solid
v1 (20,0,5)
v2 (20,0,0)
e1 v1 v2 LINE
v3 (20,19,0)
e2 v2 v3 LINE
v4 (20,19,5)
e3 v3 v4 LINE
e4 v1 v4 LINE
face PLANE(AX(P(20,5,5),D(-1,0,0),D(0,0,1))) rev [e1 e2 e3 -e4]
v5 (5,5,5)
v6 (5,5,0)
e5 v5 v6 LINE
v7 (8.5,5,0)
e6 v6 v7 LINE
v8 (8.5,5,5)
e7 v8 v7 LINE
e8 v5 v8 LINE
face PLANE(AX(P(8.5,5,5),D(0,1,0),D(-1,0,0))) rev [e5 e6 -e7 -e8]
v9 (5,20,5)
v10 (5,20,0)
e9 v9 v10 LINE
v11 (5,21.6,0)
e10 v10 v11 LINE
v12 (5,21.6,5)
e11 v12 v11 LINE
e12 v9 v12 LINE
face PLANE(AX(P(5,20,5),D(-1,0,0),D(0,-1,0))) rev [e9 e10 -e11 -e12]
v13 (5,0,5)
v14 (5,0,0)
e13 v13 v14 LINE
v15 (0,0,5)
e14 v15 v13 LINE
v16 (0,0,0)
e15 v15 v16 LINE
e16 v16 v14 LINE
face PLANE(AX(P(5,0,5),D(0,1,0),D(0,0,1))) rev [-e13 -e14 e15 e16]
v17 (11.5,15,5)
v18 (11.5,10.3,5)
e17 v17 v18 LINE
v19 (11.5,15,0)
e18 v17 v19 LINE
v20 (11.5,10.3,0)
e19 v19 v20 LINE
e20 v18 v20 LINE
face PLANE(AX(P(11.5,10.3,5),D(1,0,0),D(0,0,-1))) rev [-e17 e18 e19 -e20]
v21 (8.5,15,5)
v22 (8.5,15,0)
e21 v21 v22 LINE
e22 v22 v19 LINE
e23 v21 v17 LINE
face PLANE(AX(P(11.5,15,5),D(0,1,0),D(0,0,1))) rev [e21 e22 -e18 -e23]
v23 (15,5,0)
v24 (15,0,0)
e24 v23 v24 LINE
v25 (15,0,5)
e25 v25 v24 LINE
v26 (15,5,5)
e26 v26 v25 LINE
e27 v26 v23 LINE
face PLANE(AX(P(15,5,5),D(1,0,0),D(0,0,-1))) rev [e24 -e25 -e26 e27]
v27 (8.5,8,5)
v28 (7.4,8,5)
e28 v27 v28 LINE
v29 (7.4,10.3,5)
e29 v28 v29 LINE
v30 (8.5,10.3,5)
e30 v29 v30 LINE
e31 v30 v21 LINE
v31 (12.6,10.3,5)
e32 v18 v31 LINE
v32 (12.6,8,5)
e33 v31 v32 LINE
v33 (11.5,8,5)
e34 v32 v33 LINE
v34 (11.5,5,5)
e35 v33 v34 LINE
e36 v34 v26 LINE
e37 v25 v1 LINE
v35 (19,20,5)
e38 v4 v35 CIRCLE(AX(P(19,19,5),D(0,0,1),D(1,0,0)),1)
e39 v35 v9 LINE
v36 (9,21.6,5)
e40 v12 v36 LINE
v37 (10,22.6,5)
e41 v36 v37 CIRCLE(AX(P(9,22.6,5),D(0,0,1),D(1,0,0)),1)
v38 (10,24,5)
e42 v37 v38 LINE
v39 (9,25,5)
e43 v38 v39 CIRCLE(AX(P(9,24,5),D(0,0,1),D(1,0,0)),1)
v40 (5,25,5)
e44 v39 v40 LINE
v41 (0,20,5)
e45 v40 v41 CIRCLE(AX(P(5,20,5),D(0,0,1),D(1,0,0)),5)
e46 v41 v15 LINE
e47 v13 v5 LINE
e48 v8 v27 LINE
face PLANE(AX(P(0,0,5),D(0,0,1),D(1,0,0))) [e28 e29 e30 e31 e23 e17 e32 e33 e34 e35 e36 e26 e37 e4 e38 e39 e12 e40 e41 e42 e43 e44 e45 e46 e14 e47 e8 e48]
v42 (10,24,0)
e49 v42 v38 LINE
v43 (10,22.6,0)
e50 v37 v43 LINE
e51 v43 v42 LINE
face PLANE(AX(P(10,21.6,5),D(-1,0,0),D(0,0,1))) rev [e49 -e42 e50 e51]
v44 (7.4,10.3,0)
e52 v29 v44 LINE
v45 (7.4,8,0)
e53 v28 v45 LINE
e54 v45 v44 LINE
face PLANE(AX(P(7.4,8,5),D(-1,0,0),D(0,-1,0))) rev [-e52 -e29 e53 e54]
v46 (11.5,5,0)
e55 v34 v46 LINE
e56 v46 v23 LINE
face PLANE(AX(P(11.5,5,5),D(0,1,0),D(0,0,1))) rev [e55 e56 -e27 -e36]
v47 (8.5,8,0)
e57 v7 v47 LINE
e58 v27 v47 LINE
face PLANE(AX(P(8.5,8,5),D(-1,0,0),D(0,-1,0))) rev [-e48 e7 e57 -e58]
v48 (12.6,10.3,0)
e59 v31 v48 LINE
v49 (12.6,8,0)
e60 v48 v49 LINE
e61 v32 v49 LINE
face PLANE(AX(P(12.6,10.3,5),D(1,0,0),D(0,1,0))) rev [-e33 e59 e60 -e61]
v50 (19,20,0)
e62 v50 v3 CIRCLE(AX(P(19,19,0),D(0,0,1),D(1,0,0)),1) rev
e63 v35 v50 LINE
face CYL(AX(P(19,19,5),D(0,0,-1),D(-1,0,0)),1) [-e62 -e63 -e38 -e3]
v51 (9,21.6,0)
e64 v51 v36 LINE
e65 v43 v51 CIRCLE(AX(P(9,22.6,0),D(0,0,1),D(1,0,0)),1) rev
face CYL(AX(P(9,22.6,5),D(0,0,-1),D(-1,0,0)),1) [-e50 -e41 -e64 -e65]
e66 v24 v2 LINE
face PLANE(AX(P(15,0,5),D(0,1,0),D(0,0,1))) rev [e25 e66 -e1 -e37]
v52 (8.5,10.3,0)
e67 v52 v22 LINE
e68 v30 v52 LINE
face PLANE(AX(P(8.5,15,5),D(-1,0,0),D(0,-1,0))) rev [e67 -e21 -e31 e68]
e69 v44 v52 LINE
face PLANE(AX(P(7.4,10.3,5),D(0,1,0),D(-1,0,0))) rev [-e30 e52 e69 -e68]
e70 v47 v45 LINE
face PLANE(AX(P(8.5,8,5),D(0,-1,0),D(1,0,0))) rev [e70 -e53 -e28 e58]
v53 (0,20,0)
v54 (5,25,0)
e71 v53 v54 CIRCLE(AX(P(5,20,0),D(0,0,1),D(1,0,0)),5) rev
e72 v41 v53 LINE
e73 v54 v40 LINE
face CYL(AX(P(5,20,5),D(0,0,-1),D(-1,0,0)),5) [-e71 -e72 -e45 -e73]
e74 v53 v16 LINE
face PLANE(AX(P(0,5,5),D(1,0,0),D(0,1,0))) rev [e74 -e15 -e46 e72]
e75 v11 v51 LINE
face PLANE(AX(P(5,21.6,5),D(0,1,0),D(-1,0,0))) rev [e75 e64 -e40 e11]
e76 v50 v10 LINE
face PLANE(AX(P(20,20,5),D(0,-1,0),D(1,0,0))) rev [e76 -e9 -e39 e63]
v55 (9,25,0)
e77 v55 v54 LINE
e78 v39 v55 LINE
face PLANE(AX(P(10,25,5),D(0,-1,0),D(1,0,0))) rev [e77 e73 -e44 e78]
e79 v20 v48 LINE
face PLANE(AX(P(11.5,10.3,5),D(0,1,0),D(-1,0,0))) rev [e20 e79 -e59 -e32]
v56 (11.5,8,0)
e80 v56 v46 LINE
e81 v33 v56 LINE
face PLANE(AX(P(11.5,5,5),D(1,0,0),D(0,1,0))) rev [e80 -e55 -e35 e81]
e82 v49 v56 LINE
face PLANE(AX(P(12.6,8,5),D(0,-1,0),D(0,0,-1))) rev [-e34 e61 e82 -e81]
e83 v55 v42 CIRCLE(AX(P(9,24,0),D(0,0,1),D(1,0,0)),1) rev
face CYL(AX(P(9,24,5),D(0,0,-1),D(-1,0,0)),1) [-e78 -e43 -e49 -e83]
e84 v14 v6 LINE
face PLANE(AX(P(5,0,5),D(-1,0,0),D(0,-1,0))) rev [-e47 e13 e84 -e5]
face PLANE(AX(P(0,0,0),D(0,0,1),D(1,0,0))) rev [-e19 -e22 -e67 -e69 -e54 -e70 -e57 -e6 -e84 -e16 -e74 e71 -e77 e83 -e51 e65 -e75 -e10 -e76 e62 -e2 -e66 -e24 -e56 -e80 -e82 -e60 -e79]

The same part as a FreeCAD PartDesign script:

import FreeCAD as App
import Part
import Sketcher

V = App.Vector


def edges_at(feature, points):
    """Names of the edges that pass closest to the given points."""
    edges = feature.Shape.Edges
    near = lambda p: min(range(len(edges)), key=lambda i: edges[i].distToShape(Part.Vertex(*p))[0])
    return sorted({f"Edge{near(p) + 1}" for p in points})

doc = App.newDocument("Part")
body = doc.addObject("PartDesign::Body", "Body")

# Sketch on XY plane
sketch1 = body.newObject("Sketcher::SketchObject", "Sketch")
sketch1.AttachmentSupport = (doc.getObject("XY_Plane"), [""])
sketch1.MapMode = "FlatFace"
sketch1.addGeometry([
    Part.LineSegment(V(0, 25, 0), V(0, 0, 0)),  # 0
    Part.LineSegment(V(0, 0, 0), V(5, 0, 0)),  # 1
    Part.LineSegment(V(5, 0, 0), V(5, 5, 0)),  # 2
    Part.LineSegment(V(5, 5, 0), V(8.5, 5, 0)),  # 3
    Part.LineSegment(V(8.5, 5, 0), V(8.5, 8, 0)),  # 4
    Part.LineSegment(V(8.5, 8, 0), V(7.4, 8, 0)),  # 5
    Part.LineSegment(V(7.4, 8, 0), V(7.4, 10.3, 0)),  # 6
    Part.LineSegment(V(7.4, 10.3, 0), V(8.5, 10.3, 0)),  # 7
    Part.LineSegment(V(8.5, 10.3, 0), V(8.5, 15, 0)),  # 8
    Part.LineSegment(V(8.5, 15, 0), V(11.5, 15, 0)),  # 9
    Part.LineSegment(V(11.5, 15, 0), V(11.5, 10.3, 0)),  # 10
    Part.LineSegment(V(11.5, 10.3, 0), V(12.6, 10.3, 0)),  # 11
    Part.LineSegment(V(12.6, 10.3, 0), V(12.6, 8, 0)),  # 12
    Part.LineSegment(V(12.6, 8, 0), V(11.5, 8, 0)),  # 13
    Part.LineSegment(V(11.5, 8, 0), V(11.5, 5, 0)),  # 14
    Part.LineSegment(V(11.5, 5, 0), V(15, 5, 0)),  # 15
    Part.LineSegment(V(15, 5, 0), V(15, 0, 0)),  # 16
    Part.LineSegment(V(15, 0, 0), V(20, 0, 0)),  # 17
    Part.LineSegment(V(20, 0, 0), V(20, 20, 0)),  # 18
    Part.LineSegment(V(20, 20, 0), V(5, 20, 0)),  # 19
    Part.LineSegment(V(5, 20, 0), V(5, 21.6, 0)),  # 20
    Part.LineSegment(V(5, 21.6, 0), V(10, 21.6, 0)),  # 21
    Part.LineSegment(V(10, 21.6, 0), V(10, 25, 0)),  # 22
    Part.LineSegment(V(10, 25, 0), V(0, 25, 0)),  # 23
], False)
sketch1.addConstraint([
    Sketcher.Constraint("Coincident", 0, 2, 1, 1),
    Sketcher.Constraint("Coincident", 1, 2, 2, 1),
    Sketcher.Constraint("Coincident", 2, 2, 3, 1),
    Sketcher.Constraint("Coincident", 3, 2, 4, 1),
    Sketcher.Constraint("Coincident", 4, 2, 5, 1),
    Sketcher.Constraint("Coincident", 5, 2, 6, 1),
    Sketcher.Constraint("Coincident", 6, 2, 7, 1),
    Sketcher.Constraint("Coincident", 7, 2, 8, 1),
    Sketcher.Constraint("Coincident", 8, 2, 9, 1),
    Sketcher.Constraint("Coincident", 9, 2, 10, 1),
    Sketcher.Constraint("Coincident", 10, 2, 11, 1),
    Sketcher.Constraint("Coincident", 11, 2, 12, 1),
    Sketcher.Constraint("Coincident", 12, 2, 13, 1),
    Sketcher.Constraint("Coincident", 13, 2, 14, 1),
    Sketcher.Constraint("Coincident", 14, 2, 15, 1),
    Sketcher.Constraint("Coincident", 15, 2, 16, 1),
    Sketcher.Constraint("Coincident", 16, 2, 17, 1),
    Sketcher.Constraint("Coincident", 17, 2, 18, 1),
    Sketcher.Constraint("Coincident", 18, 2, 19, 1),
    Sketcher.Constraint("Coincident", 19, 2, 20, 1),
    Sketcher.Constraint("Coincident", 20, 2, 21, 1),
    Sketcher.Constraint("Coincident", 21, 2, 22, 1),
    Sketcher.Constraint("Coincident", 22, 2, 23, 1),
    Sketcher.Constraint("Coincident", 23, 2, 0, 1),
    Sketcher.Constraint("Vertical", 0),
    Sketcher.Constraint("Horizontal", 1),
    Sketcher.Constraint("Vertical", 2),
    Sketcher.Constraint("Horizontal", 3),
    Sketcher.Constraint("Vertical", 4),
    Sketcher.Constraint("Horizontal", 5),
    Sketcher.Constraint("Vertical", 6),
    Sketcher.Constraint("Horizontal", 7),
    Sketcher.Constraint("Vertical", 8),
    Sketcher.Constraint("Horizontal", 9),
    Sketcher.Constraint("Vertical", 10),
    Sketcher.Constraint("Horizontal", 11),
    Sketcher.Constraint("Vertical", 12),
    Sketcher.Constraint("Horizontal", 13),
    Sketcher.Constraint("Vertical", 14),
    Sketcher.Constraint("Horizontal", 15),
    Sketcher.Constraint("Vertical", 16),
    Sketcher.Constraint("Horizontal", 17),
    Sketcher.Constraint("Vertical", 18),
    Sketcher.Constraint("Horizontal", 19),
    Sketcher.Constraint("Vertical", 20),
    Sketcher.Constraint("Horizontal", 21),
    Sketcher.Constraint("Vertical", 22),
    Sketcher.Constraint("Horizontal", 23),
    Sketcher.Constraint("Coincident", 0, 2, -1, 1),
    Sketcher.Constraint("PointOnObject", 16, 2, -1),
    Sketcher.Constraint("Horizontal", 7, 2, 10, 2),
    Sketcher.Constraint("Horizontal", 5, 2, 12, 2),
    Sketcher.Constraint("Horizontal", 3, 2, 14, 2),
    Sketcher.Constraint("Vertical", 4, 2, 7, 2),
    Sketcher.Constraint("Vertical", 10, 2, 13, 2),
    Sketcher.Constraint("Vertical", 2, 2, 19, 2),
    Sketcher.Constraint("Equal", 7, 11),
    Sketcher.Constraint("Equal", 3, 15),
    Sketcher.Constraint("Equal", 1, 17),
    Sketcher.Constraint("Equal", 17, 21),
    Sketcher.Constraint("Equal", 21, 2),
    Sketcher.Constraint("Equal", 9, 4),
    Sketcher.Constraint("DistanceX", 1, 1, 1, 2, 5.0),
    Sketcher.Constraint("DistanceX", 9, 1, 9, 2, 3.0),
    Sketcher.Constraint("DistanceX", 19, 2, 19, 1, 15.0),
    Sketcher.Constraint("DistanceY", 0, 2, 0, 1, 25.0),
    Sketcher.Constraint("DistanceY", 18, 1, 18, 2, 20.0),
    Sketcher.Constraint("DistanceX", 5, 2, 5, 1, 1.1),
    Sketcher.Constraint("DistanceY", 6, 1, 6, 2, 2.3),
    Sketcher.Constraint("DistanceY", 8, 1, 8, 2, 4.7),
    Sketcher.Constraint("DistanceY", 20, 1, 20, 2, 1.6),
])
pad1 = body.newObject("PartDesign::Pad", "Pad")
pad1.Profile = sketch1
pad1.Length = 5
doc.recompute()

fillet = body.newObject("PartDesign::Fillet", "Fillet")
fillet.Base = (pad1, edges_at(pad1, [(0, 25, 2.5)]))
fillet.Radius = 5
doc.recompute()

fillet2 = body.newObject("PartDesign::Fillet", "Fillet001")
fillet2.Base = (fillet, edges_at(fillet, [(10, 21.6, 2.5), (20, 20, 2.5)]))
fillet2.Radius = 1
doc.recompute()

fillet3 = body.newObject("PartDesign::Fillet", "Fillet002")
fillet3.Base = (fillet2, edges_at(fillet2, [(10, 25, 2.5)]))
fillet3.Radius = 1

doc.recompute()
